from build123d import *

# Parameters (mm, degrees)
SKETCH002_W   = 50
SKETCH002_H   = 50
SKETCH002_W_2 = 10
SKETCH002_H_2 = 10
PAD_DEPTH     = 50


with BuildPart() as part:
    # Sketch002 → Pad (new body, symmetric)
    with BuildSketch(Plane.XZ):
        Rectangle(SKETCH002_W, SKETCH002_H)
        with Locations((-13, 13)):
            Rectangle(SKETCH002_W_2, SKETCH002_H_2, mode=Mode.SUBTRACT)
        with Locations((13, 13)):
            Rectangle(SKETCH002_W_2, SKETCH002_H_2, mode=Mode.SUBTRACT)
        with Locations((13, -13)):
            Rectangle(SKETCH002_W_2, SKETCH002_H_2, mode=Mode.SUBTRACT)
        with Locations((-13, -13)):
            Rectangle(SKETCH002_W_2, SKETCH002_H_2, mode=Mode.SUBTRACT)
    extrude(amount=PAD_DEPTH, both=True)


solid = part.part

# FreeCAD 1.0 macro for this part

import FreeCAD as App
import Part
import Sketcher

V = App.Vector

doc = App.newDocument("Part")
params = doc.addObject("Spreadsheet::Sheet", "Params")
for row, (alias, value) in enumerate([
    ("sketch1_width", "50 mm"),
    ("sketch1_width2", "10 mm"),
    ("pad1_length", "100 mm"),
], start=1):
    params.set(f"A{row}", alias)
    params.set(f"B{row}", "=" + value)
    params.setAlias(f"B{row}", alias)

body = doc.addObject("PartDesign::Body", "Body")

sketch1 = doc.addObject("Sketcher::SketchObject", "Sketch")
body.addObject(sketch1)
sketch1.AttachmentSupport = (doc.XZ_Plane, [""])
sketch1.MapMode = "FlatFace"
sketch1.addGeometry([
    Part.LineSegment(V(-25, 25, 0), V(-25, -25, 0)),
    Part.LineSegment(V(-25, -25, 0), V(25, -25, 0)),
    Part.LineSegment(V(25, -25, 0), V(25, 25, 0)),
    Part.LineSegment(V(25, 25, 0), V(-25, 25, 0)),
    Part.LineSegment(V(-8, -18, 0), V(-18, -18, 0)),
    Part.LineSegment(V(-18, -18, 0), V(-18, -8, 0)),
    Part.LineSegment(V(-18, -8, 0), V(-8, -8, 0)),
    Part.LineSegment(V(-8, -8, 0), V(-8, -18, 0)),
    Part.LineSegment(V(18, -18, 0), V(8, -18, 0)),
    Part.LineSegment(V(8, -18, 0), V(8, -8, 0)),
    Part.LineSegment(V(8, -8, 0), V(18, -8, 0)),
    Part.LineSegment(V(18, -8, 0), V(18, -18, 0)),
    Part.LineSegment(V(-8, 8, 0), V(-18, 8, 0)),
    Part.LineSegment(V(-18, 8, 0), V(-18, 18, 0)),
    Part.LineSegment(V(-18, 18, 0), V(-8, 18, 0)),
    Part.LineSegment(V(-8, 18, 0), V(-8, 8, 0)),
    Part.LineSegment(V(18, 8, 0), V(8, 8, 0)),
    Part.LineSegment(V(8, 8, 0), V(8, 18, 0)),
    Part.LineSegment(V(8, 18, 0), V(18, 18, 0)),
    Part.LineSegment(V(18, 18, 0), V(18, 8, 0)),
], False)
sketch1.addConstraint([
    Sketcher.Constraint("Coincident", 0, 2, 1, 1),
    Sketcher.Constraint("Coincident", 1, 2, 2, 1),
    Sketcher.Constraint("Coincident", 2, 2, 3, 1),
    Sketcher.Constraint("Coincident", 3, 2, 0, 1),
    Sketcher.Constraint("Coincident", 4, 2, 5, 1),
    Sketcher.Constraint("Coincident", 5, 2, 6, 1),
    Sketcher.Constraint("Coincident", 6, 2, 7, 1),
    Sketcher.Constraint("Coincident", 7, 2, 4, 1),
    Sketcher.Constraint("Coincident", 8, 2, 9, 1),
    Sketcher.Constraint("Coincident", 9, 2, 10, 1),
    Sketcher.Constraint("Coincident", 10, 2, 11, 1),
    Sketcher.Constraint("Coincident", 11, 2, 8, 1),
    Sketcher.Constraint("Coincident", 12, 2, 13, 1),
    Sketcher.Constraint("Coincident", 13, 2, 14, 1),
    Sketcher.Constraint("Coincident", 14, 2, 15, 1),
    Sketcher.Constraint("Coincident", 15, 2, 12, 1),
    Sketcher.Constraint("Coincident", 16, 2, 17, 1),
    Sketcher.Constraint("Coincident", 17, 2, 18, 1),
    Sketcher.Constraint("Coincident", 18, 2, 19, 1),
    Sketcher.Constraint("Coincident", 19, 2, 16, 1),
    Sketcher.Constraint("Vertical", 0),
    Sketcher.Constraint("Horizontal", 1),
    Sketcher.Constraint("Vertical", 2),
    Sketcher.Constraint("Horizontal", 3),
    Sketcher.Constraint("Horizontal", 4),
    Sketcher.Constraint("Vertical", 5),
    Sketcher.Constraint("Horizontal", 6),
    Sketcher.Constraint("Vertical", 7),
    Sketcher.Constraint("Horizontal", 8),
    Sketcher.Constraint("Vertical", 9),
    Sketcher.Constraint("Horizontal", 10),
    Sketcher.Constraint("Vertical", 11),
    Sketcher.Constraint("Horizontal", 12),
    Sketcher.Constraint("Vertical", 13),
    Sketcher.Constraint("Horizontal", 14),
    Sketcher.Constraint("Vertical", 15),
    Sketcher.Constraint("Horizontal", 16),
    Sketcher.Constraint("Vertical", 17),
    Sketcher.Constraint("Horizontal", 18),
    Sketcher.Constraint("Vertical", 19),
    Sketcher.Constraint("Symmetric", 0, 2, 2, 2, -1, 1),
    Sketcher.Constraint("Symmetric", 10, 2, 12, 2, -1, 1),
    Sketcher.Constraint("Symmetric", 8, 2, 14, 2, -1, 1),
    Sketcher.Constraint("Symmetric", 6, 2, 16, 2, -1, 1),
    Sketcher.Constraint("Symmetric", 4, 2, 18, 2, -1, 1),
    Sketcher.Constraint("Symmetric", 7, 2, 8, 2, -2),
    Sketcher.Constraint("Symmetric", 5, 2, 10, 2, -2),
    Sketcher.Constraint("Equal", 3, 0),
    Sketcher.Constraint("Equal", 18, 5),
    Sketcher.Constraint("DistanceX", 1, 1, 1, 2, 50.0),
    Sketcher.Constraint("DistanceX", 4, 2, 4, 1, 10.0),
    Sketcher.Constraint("DistanceX", 4, 2, -1, 1, 18.0),
    Sketcher.Constraint("DistanceY", 4, 2, -1, 1, 18.0),
])
sketch1.setExpression("Constraints[49]", "Params.sketch1_width")
sketch1.setExpression("Constraints[50]", "Params.sketch1_width2")
pad1 = doc.addObject("PartDesign::Pad", "Pad")
body.addObject(pad1)
pad1.Profile = sketch1
pad1.setExpression("Length", "Params.pad1_length")
pad1.Midplane = True

doc.recompute()
